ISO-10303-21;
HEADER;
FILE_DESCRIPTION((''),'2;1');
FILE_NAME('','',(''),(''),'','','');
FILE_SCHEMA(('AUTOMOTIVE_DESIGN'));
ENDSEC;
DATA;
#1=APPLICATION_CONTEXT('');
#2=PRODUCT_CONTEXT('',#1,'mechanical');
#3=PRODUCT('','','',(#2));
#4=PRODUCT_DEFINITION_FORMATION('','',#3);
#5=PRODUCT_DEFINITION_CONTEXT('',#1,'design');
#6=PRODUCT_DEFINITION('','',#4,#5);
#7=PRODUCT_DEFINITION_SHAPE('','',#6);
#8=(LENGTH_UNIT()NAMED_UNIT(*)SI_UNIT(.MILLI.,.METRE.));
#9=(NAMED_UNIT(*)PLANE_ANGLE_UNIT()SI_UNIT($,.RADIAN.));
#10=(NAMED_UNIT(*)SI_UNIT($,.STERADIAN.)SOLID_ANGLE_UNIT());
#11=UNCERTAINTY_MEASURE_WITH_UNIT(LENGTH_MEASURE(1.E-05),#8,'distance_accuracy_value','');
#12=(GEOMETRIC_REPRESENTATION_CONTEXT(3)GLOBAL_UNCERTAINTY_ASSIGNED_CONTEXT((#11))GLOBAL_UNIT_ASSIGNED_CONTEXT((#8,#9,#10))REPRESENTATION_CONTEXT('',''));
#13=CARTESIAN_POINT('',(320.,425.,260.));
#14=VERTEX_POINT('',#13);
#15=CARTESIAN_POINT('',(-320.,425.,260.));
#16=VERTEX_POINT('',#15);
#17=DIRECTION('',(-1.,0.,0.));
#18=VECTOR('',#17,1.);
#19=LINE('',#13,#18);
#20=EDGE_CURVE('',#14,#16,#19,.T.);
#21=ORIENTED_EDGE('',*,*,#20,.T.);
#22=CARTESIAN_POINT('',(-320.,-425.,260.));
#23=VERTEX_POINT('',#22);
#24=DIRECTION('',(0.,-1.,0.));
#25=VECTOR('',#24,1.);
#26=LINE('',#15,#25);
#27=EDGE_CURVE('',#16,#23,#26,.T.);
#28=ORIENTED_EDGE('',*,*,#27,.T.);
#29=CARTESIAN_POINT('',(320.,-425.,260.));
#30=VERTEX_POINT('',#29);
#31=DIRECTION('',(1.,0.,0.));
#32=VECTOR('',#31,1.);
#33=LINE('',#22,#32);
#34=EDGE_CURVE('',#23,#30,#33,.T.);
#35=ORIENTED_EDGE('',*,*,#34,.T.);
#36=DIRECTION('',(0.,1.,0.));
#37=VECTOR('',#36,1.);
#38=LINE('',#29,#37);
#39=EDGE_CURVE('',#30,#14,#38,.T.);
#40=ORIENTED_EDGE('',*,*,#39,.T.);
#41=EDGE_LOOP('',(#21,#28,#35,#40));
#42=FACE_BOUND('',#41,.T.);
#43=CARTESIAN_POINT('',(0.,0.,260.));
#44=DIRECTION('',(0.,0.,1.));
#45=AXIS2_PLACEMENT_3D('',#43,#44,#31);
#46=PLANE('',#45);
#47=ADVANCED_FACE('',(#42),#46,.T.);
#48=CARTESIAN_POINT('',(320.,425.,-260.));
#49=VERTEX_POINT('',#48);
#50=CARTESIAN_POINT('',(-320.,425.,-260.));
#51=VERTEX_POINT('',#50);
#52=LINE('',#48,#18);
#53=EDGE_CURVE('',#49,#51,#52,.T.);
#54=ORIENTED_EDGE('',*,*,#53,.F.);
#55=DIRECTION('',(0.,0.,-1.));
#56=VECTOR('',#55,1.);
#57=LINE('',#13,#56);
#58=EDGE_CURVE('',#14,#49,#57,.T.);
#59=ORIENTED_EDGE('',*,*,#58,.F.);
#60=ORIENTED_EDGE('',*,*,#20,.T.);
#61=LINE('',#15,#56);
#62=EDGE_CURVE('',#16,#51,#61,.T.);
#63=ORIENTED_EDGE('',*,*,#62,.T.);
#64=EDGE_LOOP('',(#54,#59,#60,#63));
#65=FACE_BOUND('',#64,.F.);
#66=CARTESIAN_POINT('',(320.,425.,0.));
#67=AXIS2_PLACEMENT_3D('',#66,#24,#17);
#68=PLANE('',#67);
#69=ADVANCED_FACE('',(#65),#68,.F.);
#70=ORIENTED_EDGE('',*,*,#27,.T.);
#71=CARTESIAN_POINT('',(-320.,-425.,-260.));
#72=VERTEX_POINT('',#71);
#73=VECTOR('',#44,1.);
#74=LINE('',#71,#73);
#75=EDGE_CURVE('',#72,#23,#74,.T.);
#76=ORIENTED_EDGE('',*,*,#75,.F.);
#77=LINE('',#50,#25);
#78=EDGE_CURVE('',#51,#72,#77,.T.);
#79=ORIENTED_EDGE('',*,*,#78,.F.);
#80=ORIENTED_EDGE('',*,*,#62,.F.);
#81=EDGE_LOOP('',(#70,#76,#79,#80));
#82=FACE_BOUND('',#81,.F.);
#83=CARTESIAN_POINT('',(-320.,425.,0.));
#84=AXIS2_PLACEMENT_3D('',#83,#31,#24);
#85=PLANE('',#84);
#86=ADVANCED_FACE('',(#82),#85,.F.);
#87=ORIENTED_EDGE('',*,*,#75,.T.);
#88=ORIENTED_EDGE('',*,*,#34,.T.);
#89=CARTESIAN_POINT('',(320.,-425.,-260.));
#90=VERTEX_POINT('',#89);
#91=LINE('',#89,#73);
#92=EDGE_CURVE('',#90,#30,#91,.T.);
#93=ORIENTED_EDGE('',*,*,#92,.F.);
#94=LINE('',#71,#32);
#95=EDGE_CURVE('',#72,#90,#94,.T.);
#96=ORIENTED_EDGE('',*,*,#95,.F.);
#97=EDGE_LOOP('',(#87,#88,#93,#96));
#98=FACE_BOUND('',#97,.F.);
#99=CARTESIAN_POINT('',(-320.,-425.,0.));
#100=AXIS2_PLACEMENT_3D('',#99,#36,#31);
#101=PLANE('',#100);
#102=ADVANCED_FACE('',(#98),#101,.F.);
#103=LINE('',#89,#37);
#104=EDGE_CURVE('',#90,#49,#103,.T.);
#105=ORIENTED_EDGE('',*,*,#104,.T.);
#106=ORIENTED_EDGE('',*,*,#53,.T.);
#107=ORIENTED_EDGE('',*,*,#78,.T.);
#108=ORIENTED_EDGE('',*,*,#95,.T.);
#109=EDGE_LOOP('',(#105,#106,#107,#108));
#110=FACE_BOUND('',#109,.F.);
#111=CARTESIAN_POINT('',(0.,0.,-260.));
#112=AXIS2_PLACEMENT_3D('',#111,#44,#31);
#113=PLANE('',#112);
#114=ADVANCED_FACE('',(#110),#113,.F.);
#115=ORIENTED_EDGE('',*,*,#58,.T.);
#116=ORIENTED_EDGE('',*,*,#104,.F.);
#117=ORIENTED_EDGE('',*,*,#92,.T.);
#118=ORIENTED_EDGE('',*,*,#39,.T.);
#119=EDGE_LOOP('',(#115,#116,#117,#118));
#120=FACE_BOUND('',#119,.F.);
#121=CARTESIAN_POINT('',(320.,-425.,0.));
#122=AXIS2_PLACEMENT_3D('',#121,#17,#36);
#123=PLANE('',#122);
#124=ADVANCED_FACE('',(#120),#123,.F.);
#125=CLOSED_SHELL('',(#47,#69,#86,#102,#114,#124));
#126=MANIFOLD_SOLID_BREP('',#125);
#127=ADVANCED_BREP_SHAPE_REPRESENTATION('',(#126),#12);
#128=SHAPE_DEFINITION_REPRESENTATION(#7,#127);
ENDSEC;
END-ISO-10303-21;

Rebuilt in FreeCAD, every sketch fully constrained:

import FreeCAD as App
import Part
import Sketcher
from FreeCAD import Vector
Q = App.Units.Quantity

doc = App.newDocument("Part")
body = doc.addObject("PartDesign::Body", "Body")

# Sketch on XY plane
sketch1 = body.newObject("Sketcher::SketchObject", "Sketch")
sketch1.AttachmentSupport = (doc.getObject("XY_Plane"), [""])
sketch1.MapMode = "FlatFace"
sketch1.addGeometry(Part.LineSegment(Vector(-320, 425, 0), Vector(-320, -425, 0)), False)
sketch1.addGeometry(Part.LineSegment(Vector(-320, -425, 0), Vector(320, -425, 0)), False)
sketch1.addGeometry(Part.LineSegment(Vector(320, -425, 0), Vector(320, 425, 0)), False)
sketch1.addGeometry(Part.LineSegment(Vector(320, 425, 0), Vector(-320, 425, 0)), False)
sketch1.addConstraint(Sketcher.Constraint("Coincident", 0, 2, 1, 1))
sketch1.addConstraint(Sketcher.Constraint("Coincident", 1, 2, 2, 1))
sketch1.addConstraint(Sketcher.Constraint("Coincident", 2, 2, 3, 1))
sketch1.addConstraint(Sketcher.Constraint("Coincident", 3, 2, 0, 1))
sketch1.addConstraint(Sketcher.Constraint("Vertical", 0))
sketch1.addConstraint(Sketcher.Constraint("Horizontal", 1))
sketch1.addConstraint(Sketcher.Constraint("Vertical", 2))
sketch1.addConstraint(Sketcher.Constraint("Horizontal", 3))
sketch1.addConstraint(Sketcher.Constraint("Symmetric", 0, 2, 2, 2, -1, 1))
sketch1.addConstraint(Sketcher.Constraint("DistanceX", 1, 1, 1, 2, Q("640 mm")))
sketch1.addConstraint(Sketcher.Constraint("DistanceY", 0, 2, 0, 1, Q("850 mm")))
pad1 = body.newObject("PartDesign::Pad", "Pad")
pad1.Profile = sketch1
pad1.Length = 520
pad1.Midplane = True

doc.recompute()
